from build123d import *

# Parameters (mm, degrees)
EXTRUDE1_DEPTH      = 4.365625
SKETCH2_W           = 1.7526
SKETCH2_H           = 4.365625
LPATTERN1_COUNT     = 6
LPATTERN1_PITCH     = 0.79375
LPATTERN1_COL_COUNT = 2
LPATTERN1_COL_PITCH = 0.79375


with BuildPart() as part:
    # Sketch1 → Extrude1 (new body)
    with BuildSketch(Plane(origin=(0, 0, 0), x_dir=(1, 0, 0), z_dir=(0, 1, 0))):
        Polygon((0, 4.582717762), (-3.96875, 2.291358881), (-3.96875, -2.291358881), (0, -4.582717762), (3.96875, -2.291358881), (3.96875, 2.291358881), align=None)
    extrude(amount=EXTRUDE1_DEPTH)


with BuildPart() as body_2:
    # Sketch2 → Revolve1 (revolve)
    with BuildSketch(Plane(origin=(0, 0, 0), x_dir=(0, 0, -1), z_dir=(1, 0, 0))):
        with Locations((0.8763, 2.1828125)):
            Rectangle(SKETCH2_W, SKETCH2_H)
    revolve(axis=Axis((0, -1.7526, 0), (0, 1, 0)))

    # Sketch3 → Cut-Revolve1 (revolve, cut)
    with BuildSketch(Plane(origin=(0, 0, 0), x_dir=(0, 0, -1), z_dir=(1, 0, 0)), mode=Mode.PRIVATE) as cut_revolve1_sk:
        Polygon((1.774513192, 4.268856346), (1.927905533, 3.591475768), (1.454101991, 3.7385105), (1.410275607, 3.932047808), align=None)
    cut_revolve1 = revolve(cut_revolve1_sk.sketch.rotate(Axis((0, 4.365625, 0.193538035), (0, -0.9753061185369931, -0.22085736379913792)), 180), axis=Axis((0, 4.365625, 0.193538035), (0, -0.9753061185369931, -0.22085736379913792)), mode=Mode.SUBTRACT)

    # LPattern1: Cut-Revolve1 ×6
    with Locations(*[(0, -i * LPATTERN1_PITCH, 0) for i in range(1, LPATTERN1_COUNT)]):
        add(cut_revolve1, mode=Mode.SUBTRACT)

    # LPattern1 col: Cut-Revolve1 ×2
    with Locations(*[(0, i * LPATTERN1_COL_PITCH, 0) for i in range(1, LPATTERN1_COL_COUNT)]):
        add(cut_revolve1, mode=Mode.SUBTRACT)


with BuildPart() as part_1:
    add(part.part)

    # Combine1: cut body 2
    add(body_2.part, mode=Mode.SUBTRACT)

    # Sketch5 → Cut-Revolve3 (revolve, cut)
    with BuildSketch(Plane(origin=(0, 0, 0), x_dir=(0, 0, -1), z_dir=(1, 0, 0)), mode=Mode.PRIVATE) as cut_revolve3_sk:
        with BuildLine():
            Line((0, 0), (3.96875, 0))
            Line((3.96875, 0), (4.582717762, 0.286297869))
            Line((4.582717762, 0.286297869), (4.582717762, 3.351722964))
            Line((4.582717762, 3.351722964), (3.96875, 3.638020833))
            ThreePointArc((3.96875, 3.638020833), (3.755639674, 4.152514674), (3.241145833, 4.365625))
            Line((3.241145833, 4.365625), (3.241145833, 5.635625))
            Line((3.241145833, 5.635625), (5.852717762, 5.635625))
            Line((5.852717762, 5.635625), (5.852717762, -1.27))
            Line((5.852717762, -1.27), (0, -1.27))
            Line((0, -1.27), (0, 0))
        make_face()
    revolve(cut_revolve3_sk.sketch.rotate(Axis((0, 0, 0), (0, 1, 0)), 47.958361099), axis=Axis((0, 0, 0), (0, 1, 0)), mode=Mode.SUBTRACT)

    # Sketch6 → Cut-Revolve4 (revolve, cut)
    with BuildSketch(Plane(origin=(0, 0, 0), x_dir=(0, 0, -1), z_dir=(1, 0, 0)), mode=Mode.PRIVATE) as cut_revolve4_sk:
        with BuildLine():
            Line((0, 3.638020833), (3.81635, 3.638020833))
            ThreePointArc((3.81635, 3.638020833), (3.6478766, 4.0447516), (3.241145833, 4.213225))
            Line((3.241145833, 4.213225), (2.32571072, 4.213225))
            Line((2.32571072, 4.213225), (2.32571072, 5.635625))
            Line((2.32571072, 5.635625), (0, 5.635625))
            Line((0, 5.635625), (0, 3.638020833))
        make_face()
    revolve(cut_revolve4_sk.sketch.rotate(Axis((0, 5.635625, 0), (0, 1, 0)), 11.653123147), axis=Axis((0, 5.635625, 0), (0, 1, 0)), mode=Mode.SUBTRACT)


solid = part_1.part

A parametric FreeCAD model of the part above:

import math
import FreeCAD as App
import Part
import Sketcher
from FreeCAD import Vector
Q = App.Units.Quantity

doc = App.newDocument("Part")
params = doc.addObject("Spreadsheet::Sheet", "Params")
for row, (alias, value) in enumerate([
    ("pad1_length", "0.171875 in"),
    ("sketch2_width", "0.171875 in"),
    ("sketch2_height", "0.069 in"),
    ("revolution_angle", "360 deg"),
    ("groove_angle", "360 deg"),
    ("linearpattern_pitch", "0.03125 in"),
    ("linearpattern2_pitch", "0.03125 in"),
    ("sketch4_width", "0.05 in"),
    ("sketch4_height", "0.15625 in"),
    ("groove2_angle", "360 deg"),
    ("sketch5_width", "0.056 in"),
    ("groove3_angle", "360 deg"),
], start=1):
    params.set(f"A{row}", alias)
    params.set(f"B{row}", "=" + value)
    params.setAlias(f"B{row}", alias)

body = doc.addObject("PartDesign::Body", "Body")

# Sketch on XZ plane
sketch1 = body.newObject("Sketcher::SketchObject", "Sketch")
sketch1.AttachmentSupport = (doc.getObject("XZ_Plane"), [""])
sketch1.MapMode = "FlatFace"
sketch1.addGeometry([
    Part.LineSegment(Vector(0, -4.6, 0), Vector(-4, -2.3, 0)),  # 0
    Part.LineSegment(Vector(-4, -2.3, 0), Vector(-4, 2.3, 0)),  # 1
    Part.LineSegment(Vector(-4, 2.3, 0), Vector(0, 4.6, 0)),  # 2
    Part.LineSegment(Vector(0, 4.6, 0), Vector(4, 2.3, 0)),  # 3
    Part.LineSegment(Vector(4, 2.3, 0), Vector(4, -2.3, 0)),  # 4
    Part.LineSegment(Vector(4, -2.3, 0), Vector(0, -4.6, 0)),  # 5
], False)
sketch1.addConstraint([
    Sketcher.Constraint("Coincident", 0, 2, 1, 1),
    Sketcher.Constraint("Coincident", 1, 2, 2, 1),
    Sketcher.Constraint("Coincident", 2, 2, 3, 1),
    Sketcher.Constraint("Coincident", 3, 2, 4, 1),
    Sketcher.Constraint("Coincident", 4, 2, 5, 1),
    Sketcher.Constraint("Coincident", 5, 2, 0, 1),
    Sketcher.Constraint("Vertical", 1),
    Sketcher.Constraint("Vertical", 4),
    Sketcher.Constraint("Symmetric", 0, 2, 3, 2, -1, 1),
    Sketcher.Constraint("Symmetric", 2, 2, 5, 2, -1, 1),
    Sketcher.Constraint("PointOnObject", 2, 2, -2),
    Sketcher.Constraint("Parallel", 2, 5),
    Sketcher.Constraint("Horizontal", 1, 2, 3, 2),
    Sketcher.Constraint("Angle", 0, Q("150 deg")),
    Sketcher.Constraint("DistanceX", 0, 2, -1, 1, Q("0.15625 in")),
    Sketcher.Constraint("DistanceY", 1, 1, 1, 2, Q("4.582718 mm")),
])
pad1 = body.newObject("PartDesign::Pad", "Pad")
pad1.Profile = sketch1
pad1.setExpression("Length", "Params.pad1_length")
pad1.Reversed = True
body2 = doc.addObject("PartDesign::Body", "Body001")

# Sketch on YZ plane
sketch2 = body2.newObject("Sketcher::SketchObject", "Sketch001")
sketch2.AttachmentSupport = (doc.getObject("YZ_Plane001"), [""])
sketch2.MapMode = "FlatFace"
sketch2.addGeometry([
    Part.LineSegment(Vector(4.4, 0, 0), Vector(0, 0, 0)),
    Part.LineSegment(Vector(0, 0, 0), Vector(0, -1.8, 0)),
    Part.LineSegment(Vector(0, -1.8, 0), Vector(4.4, -1.8, 0)),
    Part.LineSegment(Vector(4.4, -1.8, 0), Vector(4.4, 0, 0)),
], False)
sketch2.addConstraint([
    Sketcher.Constraint("Coincident", 0, 2, 1, 1),
    Sketcher.Constraint("Coincident", 1, 2, 2, 1),
    Sketcher.Constraint("Coincident", 2, 2, 3, 1),
    Sketcher.Constraint("Coincident", 3, 2, 0, 1),
    Sketcher.Constraint("Horizontal", 0),
    Sketcher.Constraint("Vertical", 1),
    Sketcher.Constraint("Horizontal", 2),
    Sketcher.Constraint("Vertical", 3),
    Sketcher.Constraint("Coincident", 0, 2, -1, 1),
    Sketcher.Constraint("DistanceX", 0, 2, 0, 1, Q("0.171875 in")),
    Sketcher.Constraint("DistanceY", 1, 2, 1, 1, Q("0.069 in")),
])
sketch2.setExpression("Constraints[9]", "Params.sketch2_width")
sketch2.setExpression("Constraints[10]", "Params.sketch2_height")
revolution = body2.newObject("PartDesign::Revolution", "Revolution")
revolution.Profile = sketch2
revolution.ReferenceAxis = (sketch2, ["H_Axis"])
revolution.setExpression("Angle", "Params.revolution_angle")

# Sketch on YZ plane
sketch3 = body2.newObject("Sketcher::SketchObject", "Sketch002")
sketch3.AttachmentSupport = (doc.getObject("YZ_Plane001"), [""])
sketch3.MapMode = "FlatFace"
sketch3.addGeometry([
    Part.LineSegment(Vector(3.59, -1.93, 0), Vector(4.27, -1.77, 0)),
    Part.LineSegment(Vector(4.27, -1.77, 0), Vector(3.93, -1.41, 0)),
    Part.LineSegment(Vector(3.93, -1.41, 0), Vector(3.74, -1.45, 0)),
    Part.LineSegment(Vector(3.74, -1.45, 0), Vector(3.59, -1.93, 0)),
], False)
sketch3.addGeometry(Part.LineSegment(Vector(3.85, 0.08, 0), Vector(3.17, -0.08, 0)), True)  # axis
sketch3.addConstraint([
    Sketcher.Constraint("Coincident", 0, 2, 1, 1),
    Sketcher.Constraint("Coincident", 1, 2, 2, 1),
    Sketcher.Constraint("Coincident", 2, 2, 3, 1),
    Sketcher.Constraint("Coincident", 3, 2, 0, 1),
    Sketcher.Constraint("Parallel", 0, 2),
    Sketcher.Constraint("Parallel", 2, 4),
    Sketcher.Constraint("Equal", 1, 3),
    Sketcher.Constraint("Equal", 0, 4),
    Sketcher.Constraint("DistanceY", 2, 2, -1, 1, Q("1.454102 mm")),
    Sketcher.Constraint("DistanceY", 2, 2, 4, 1, Q("1.530798 mm")),
    Sketcher.Constraint("DistanceY", 3, 2, 4, 1, Q("2.004602 mm")),
    Sketcher.Constraint("Distance", 0, Q("0.694531 mm")),
    Sketcher.Constraint("DistanceX", -1, 1, 2, 2, Q("3.73851 mm")),
    Sketcher.Constraint("DistanceX", -1, 1, 4, 1, Q("3.849651 mm")),
    Sketcher.Constraint("DistanceX", -1, 1, 4, 2, Q("3.172271 mm")),
    Sketcher.Constraint("DistanceX", 1, 2, 0, 2, Q("0.336809 mm")),
])
groove = body2.newObject("PartDesign::Groove", "Groove")
groove.Profile = sketch3
groove.ReferenceAxis = (sketch3, ["Axis0"])
groove.setExpression("Angle", "Params.groove_angle")
doc.recompute()

linearpattern = body2.newObject("PartDesign::LinearPattern", "LinearPattern")
linearpattern.Originals = [groove]
linearpattern.Direction = (doc.getObject("Y_Axis001"), [""])
linearpattern.Mode = "offset"
linearpattern.setExpression("Offset", "Params.linearpattern_pitch")
linearpattern.Occurrences = 6
linearpattern.Reversed = True
body2.Tip = linearpattern
doc.recompute()

linearpattern2 = body2.newObject("PartDesign::LinearPattern", "LinearPattern001")
linearpattern2.Originals = [groove]
linearpattern2.Direction = (doc.getObject("Y_Axis001"), [""])
linearpattern2.Mode = "offset"
linearpattern2.setExpression("Offset", "Params.linearpattern2_pitch")
linearpattern2.Occurrences = 2
body2.Tip = linearpattern2
doc.recompute()

boolean = body.newObject("PartDesign::Boolean", "Boolean")
boolean.Type = "Cut"
boolean.addObjects([body2])

# Sketch on YZ plane
sketch4 = body.newObject("Sketcher::SketchObject", "Sketch003")
sketch4.AttachmentSupport = (doc.getObject("YZ_Plane"), [""])
sketch4.MapMode = "FlatFace"
sketch4.addGeometry([
    Part.LineSegment(Vector(0, -4, 0), Vector(0, 0, 0)),  # 0
    Part.LineSegment(Vector(0, 0, 0), Vector(-1.3, 0, 0)),  # 1
    Part.LineSegment(Vector(-1.3, 0, 0), Vector(-1.3, -5.9, 0)),  # 2
    Part.LineSegment(Vector(-1.3, -5.9, 0), Vector(5.6, -5.9, 0)),  # 3
    Part.LineSegment(Vector(5.6, -5.9, 0), Vector(5.6, -3.2, 0)),  # 4
    Part.LineSegment(Vector(5.6, -3.2, 0), Vector(4.4, -3.2, 0)),  # 5
    Part.ArcOfCircle(Part.Circle(Vector(3.6, -3.2, 0), Vector(0, 0, 1), 0.7), math.radians(-90), math.radians(0)),  # 6
    Part.LineSegment(Vector(3.6, -4, 0), Vector(3.4, -4.6, 0)),  # 7
    Part.LineSegment(Vector(3.4, -4.6, 0), Vector(0.3, -4.6, 0)),  # 8
    Part.LineSegment(Vector(0.3, -4.6, 0), Vector(0, -4, 0)),  # 9
], False)
sketch4.addConstraint([
    Sketcher.Constraint("Coincident", 0, 2, 1, 1),
    Sketcher.Constraint("Coincident", 1, 2, 2, 1),
    Sketcher.Constraint("Coincident", 2, 2, 3, 1),
    Sketcher.Constraint("Coincident", 3, 2, 4, 1),
    Sketcher.Constraint("Coincident", 4, 2, 5, 1),
    Sketcher.Constraint("Coincident", 5, 2, 6, 2),
    Sketcher.Constraint("Coincident", 6, 1, 7, 1),
    Sketcher.Constraint("Coincident", 7, 2, 8, 1),
    Sketcher.Constraint("Coincident", 8, 2, 9, 1),
    Sketcher.Constraint("Coincident", 9, 2, 0, 1),
    Sketcher.Constraint("Vertical", 0),
    Sketcher.Constraint("Horizontal", 1),
    Sketcher.Constraint("Vertical", 2),
    Sketcher.Constraint("Horizontal", 3),
    Sketcher.Constraint("Vertical", 4),
    Sketcher.Constraint("Horizontal", 5),
    Sketcher.Constraint("Horizontal", 8),
    Sketcher.Constraint("Coincident", 0, 2, -1, 1),
    Sketcher.Constraint("Horizontal", 6, 3, 4, 2),
    Sketcher.Constraint("Horizontal", 6, 1, 9, 2),
    Sketcher.Constraint("Equal", 1, 5),
    Sketcher.Constraint("Equal", 7, 9),
    Sketcher.Constraint("Angle", 7, Q("-115 deg")),
    Sketcher.Constraint("DistanceX", 1, 2, 1, 1, Q("0.05 in")),
    Sketcher.Constraint("DistanceY", 0, 1, 0, 2, Q("0.15625 in")),
    Sketcher.Constraint("DistanceY", 3, 2, 7, 2, Q("0.05 in")),
    Sketcher.Constraint("DistanceX", -1, 1, 5, 2, Q("0.171875 in")),
    Sketcher.Constraint("Radius", 6, Q("0.727604 mm")),
    Sketcher.Constraint("DistanceY", 4, 1, 4, 2, Q("2.611572 mm")),
    Sketcher.Constraint("DistanceX", 8, 2, 8, 1, Q("3.065425 mm")),
])
sketch4.setExpression("Constraints[23]", "Params.sketch4_width")
sketch4.setExpression("Constraints[24]", "Params.sketch4_height")
groove2 = body.newObject("PartDesign::Groove", "Groove001")
groove2.Profile = sketch4
groove2.ReferenceAxis = (sketch4, ["H_Axis"])
groove2.setExpression("Angle", "Params.groove2_angle")

# Sketch on YZ plane
sketch5 = body.newObject("Sketcher::SketchObject", "Sketch004")
sketch5.AttachmentSupport = (doc.getObject("YZ_Plane"), [""])
sketch5.MapMode = "FlatFace"
sketch5.addGeometry([
    Part.LineSegment(Vector(3.6, 0, 0), Vector(3.6, -3.8, 0)),  # 0
    Part.ArcOfCircle(Part.Circle(Vector(3.6, -3.2, 0), Vector(0, 0, 1), 0.6), math.radians(-90), math.radians(0)),  # 1
    Part.LineSegment(Vector(4.2, -3.2, 0), Vector(4.2, -2.3, 0)),  # 2
    Part.LineSegment(Vector(4.2, -2.3, 0), Vector(5.6, -2.3, 0)),  # 3
    Part.LineSegment(Vector(5.6, -2.3, 0), Vector(5.6, 0, 0)),  # 4
    Part.LineSegment(Vector(5.6, 0, 0), Vector(3.6, 0, 0)),  # 5
], False)
sketch5.addConstraint([
    Sketcher.Constraint("Coincident", 0, 2, 1, 1),
    Sketcher.Constraint("Tangent", 1, 2, 2, 1),
    Sketcher.Constraint("Coincident", 2, 2, 3, 1),
    Sketcher.Constraint("Coincident", 3, 2, 4, 1),
    Sketcher.Constraint("Coincident", 4, 2, 5, 1),
    Sketcher.Constraint("Coincident", 5, 2, 0, 1),
    Sketcher.Constraint("Vertical", 0),
    Sketcher.Constraint("Vertical", 2),
    Sketcher.Constraint("Horizontal", 3),
    Sketcher.Constraint("Vertical", 4),
    Sketcher.Constraint("Horizontal", 5),
    Sketcher.Constraint("PointOnObject", 4, 2, -1),
    Sketcher.Constraint("Vertical", 1, 3, 0, 2),
    Sketcher.Constraint("DistanceX", 3, 1, 3, 2, Q("0.056 in")),
    Sketcher.Constraint("Radius", 1, Q("0.575204 mm")),
    Sketcher.Constraint("DistanceY", 0, 2, 0, 1, Q("3.81635 mm")),
    Sketcher.Constraint("DistanceY", 4, 1, 4, 2, Q("2.325711 mm")),
    Sketcher.Constraint("DistanceX", -1, 1, 1, 3, Q("3.638021 mm")),
])
sketch5.setExpression("Constraints[13]", "Params.sketch5_width")
groove3 = body.newObject("PartDesign::Groove", "Groove002")
groove3.Profile = sketch5
groove3.ReferenceAxis = (sketch5, ["H_Axis"])
groove3.setExpression("Angle", "Params.groove3_angle")

doc.recompute()
